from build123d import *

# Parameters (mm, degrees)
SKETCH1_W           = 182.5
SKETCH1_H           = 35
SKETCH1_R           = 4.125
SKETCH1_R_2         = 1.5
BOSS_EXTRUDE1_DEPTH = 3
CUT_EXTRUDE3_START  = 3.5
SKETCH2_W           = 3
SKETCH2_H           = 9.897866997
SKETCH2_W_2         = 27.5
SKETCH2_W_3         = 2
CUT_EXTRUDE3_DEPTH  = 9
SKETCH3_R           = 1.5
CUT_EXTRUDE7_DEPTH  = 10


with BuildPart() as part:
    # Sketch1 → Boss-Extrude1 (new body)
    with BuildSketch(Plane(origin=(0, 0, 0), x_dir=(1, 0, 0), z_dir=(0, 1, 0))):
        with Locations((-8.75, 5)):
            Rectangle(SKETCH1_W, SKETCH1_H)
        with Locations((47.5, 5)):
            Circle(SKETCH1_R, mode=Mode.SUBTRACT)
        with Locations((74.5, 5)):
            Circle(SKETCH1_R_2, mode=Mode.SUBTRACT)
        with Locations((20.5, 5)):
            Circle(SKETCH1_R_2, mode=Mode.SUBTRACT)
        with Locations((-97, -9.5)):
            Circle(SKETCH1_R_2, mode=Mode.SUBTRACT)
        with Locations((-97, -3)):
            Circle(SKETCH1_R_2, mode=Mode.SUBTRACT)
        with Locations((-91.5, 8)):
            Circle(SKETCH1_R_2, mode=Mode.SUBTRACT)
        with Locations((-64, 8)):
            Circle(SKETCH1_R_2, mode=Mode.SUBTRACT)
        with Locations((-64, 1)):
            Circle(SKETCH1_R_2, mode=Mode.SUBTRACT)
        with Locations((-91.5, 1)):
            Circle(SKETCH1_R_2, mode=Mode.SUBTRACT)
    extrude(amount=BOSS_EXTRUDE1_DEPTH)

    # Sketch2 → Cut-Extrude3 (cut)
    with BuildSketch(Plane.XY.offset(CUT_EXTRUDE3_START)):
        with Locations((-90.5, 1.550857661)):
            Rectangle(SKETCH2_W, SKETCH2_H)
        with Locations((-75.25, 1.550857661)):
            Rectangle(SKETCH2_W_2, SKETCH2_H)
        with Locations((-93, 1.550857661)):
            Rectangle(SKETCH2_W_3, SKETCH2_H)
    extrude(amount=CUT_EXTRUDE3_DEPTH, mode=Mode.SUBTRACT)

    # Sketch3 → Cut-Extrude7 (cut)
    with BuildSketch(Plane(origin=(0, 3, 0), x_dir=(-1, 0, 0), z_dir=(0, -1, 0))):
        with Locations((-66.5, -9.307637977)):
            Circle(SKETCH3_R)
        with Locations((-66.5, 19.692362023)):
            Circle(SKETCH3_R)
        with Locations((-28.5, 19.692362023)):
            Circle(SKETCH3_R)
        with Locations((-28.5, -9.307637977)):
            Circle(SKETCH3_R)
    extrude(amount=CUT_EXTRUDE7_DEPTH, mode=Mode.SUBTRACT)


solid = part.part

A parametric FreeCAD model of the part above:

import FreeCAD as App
import Part
import Sketcher


def add_polygon(sketch, points):
    """Adds a closed chain of lines whose ends are joined by coincident constraints."""
    first, n = sketch.GeometryCount, len(points)
    for a, b in zip(points, points[1:] + points[:1]):
        sketch.addGeometry(Part.LineSegment(App.Vector(*a, 0), App.Vector(*b, 0)), False)
    for i in range(n):
        sketch.addConstraint(Sketcher.Constraint("Coincident", first + i, 2, first + (i + 1) % n, 1))

doc = App.newDocument("Part")
body = doc.addObject("PartDesign::Body", "Body")

# Sketch on XZ plane
sketch1 = doc.addObject("Sketcher::SketchObject", "Sketch")
body.addObject(sketch1)
sketch1.AttachmentSupport = (doc.XZ_Plane, [""])
sketch1.MapMode = "FlatFace"
add_polygon(sketch1, [(-100, -22.5), (-100, 12.5), (82.5, 12.5), (82.5, -22.5)])  # lines 0-3
sketch1.addGeometry(Part.Circle(App.Vector(-97, 9.5, 0), App.Vector(0, 0, 1), 1.5), False)  # 4
sketch1.addGeometry(Part.Circle(App.Vector(-97, 3, 0), App.Vector(0, 0, 1), 1.5), False)  # 5
sketch1.addGeometry(Part.Circle(App.Vector(-91.5, -1, 0), App.Vector(0, 0, 1), 1.5), False)  # 6
sketch1.addGeometry(Part.Circle(App.Vector(-64, -1, 0), App.Vector(0, 0, 1), 1.5), False)  # 7
sketch1.addGeometry(Part.Circle(App.Vector(-91.5, -8, 0), App.Vector(0, 0, 1), 1.5), False)  # 8
sketch1.addGeometry(Part.Circle(App.Vector(-64, -8, 0), App.Vector(0, 0, 1), 1.5), False)  # 9
sketch1.addGeometry(Part.Circle(App.Vector(20.5, -5, 0), App.Vector(0, 0, 1), 1.5), False)  # 10
sketch1.addGeometry(Part.Circle(App.Vector(47.5, -5, 0), App.Vector(0, 0, 1), 4.1), False)  # 11
sketch1.addGeometry(Part.Circle(App.Vector(74.5, -5, 0), App.Vector(0, 0, 1), 1.5), False)  # 12
sketch1.addConstraint([
    Sketcher.Constraint("Vertical", 0),
    Sketcher.Constraint("Horizontal", 1),
    Sketcher.Constraint("Vertical", 2),
    Sketcher.Constraint("Horizontal", 3),
    Sketcher.Constraint("Equal", 4, 5),
    Sketcher.Constraint("Equal", 5, 6),
    Sketcher.Constraint("Equal", 6, 7),
    Sketcher.Constraint("Equal", 7, 8),
    Sketcher.Constraint("Equal", 8, 9),
    Sketcher.Constraint("Equal", 9, 10),
    Sketcher.Constraint("Equal", 10, 12),
    Sketcher.Constraint("Horizontal", 6, 3, 7, 3),
    Sketcher.Constraint("Horizontal", 8, 3, 9, 3),
    Sketcher.Constraint("Horizontal", 10, 3, 11, 3),
    Sketcher.Constraint("Horizontal", 11, 3, 12, 3),
    Sketcher.Constraint("Vertical", 4, 3, 5, 3),
    Sketcher.Constraint("Vertical", 6, 3, 8, 3),
    Sketcher.Constraint("Vertical", 7, 3, 9, 3),
    Sketcher.Constraint("Diameter", 4, 3.0),
    Sketcher.Constraint("Diameter", 11, 8.25),
    Sketcher.Constraint("DistanceY", 0, 1, 0, 2, 35.0),
    Sketcher.Constraint("DistanceX", 1, 1, 1, 2, 182.5),
    Sketcher.Constraint("DistanceX", 4, 3, -1, 1, 97.0),
    Sketcher.Constraint("DistanceY", -1, 1, 5, 3, 3.0),
    Sketcher.Constraint("DistanceY", 6, 3, -1, 1, 1.0),
    Sketcher.Constraint("DistanceX", 7, 3, -1, 1, 64.0),
    Sketcher.Constraint("DistanceY", 8, 3, -1, 1, 8.0),
    Sketcher.Constraint("DistanceY", 10, 3, -1, 1, 5.0),
    Sketcher.Constraint("DistanceX", 0, 2, -1, 1, 100.0),
    Sketcher.Constraint("DistanceX", 8, 3, 10, 3, 112.0),
    Sketcher.Constraint("DistanceX", 10, 3, 11, 3, 27.0),
    Sketcher.Constraint("DistanceX", 11, 3, 12, 3, 27.0),
    Sketcher.Constraint("DistanceY", 4, 3, 0, 2, 3.0),
    Sketcher.Constraint("DistanceX", 12, 3, 1, 2, 8.0),
    Sketcher.Constraint("DistanceY", -1, 1, 4, 3, 9.5),
])
pad1 = doc.addObject("PartDesign::Pad", "Pad")
body.addObject(pad1)
pad1.Profile = sketch1
pad1.Length = 3
pad1.Reversed = True

# Sketch on XY plane
sketch2 = doc.addObject("Sketcher::SketchObject", "Sketch001")
body.addObject(sketch2)
sketch2.AttachmentSupport = (doc.XY_Plane, [""])
sketch2.MapMode = "FlatFace"
sketch2.AttachmentOffset = App.Placement(App.Vector(0, 0, 3.5), App.Rotation())
add_polygon(sketch2, [(-62, -3), (-62, 6), (-94, 6), (-94, -3)])  # lines 0-3
sketch2.addConstraint([
    Sketcher.Constraint("Vertical", 0),
    Sketcher.Constraint("Horizontal", 1),
    Sketcher.Constraint("Vertical", 2),
    Sketcher.Constraint("Horizontal", 3),
    Sketcher.Constraint("DistanceX", 1, 2, 1, 1, 32.5),
    Sketcher.Constraint("DistanceX", 1, 2, -1, 1, 94.0),
    Sketcher.Constraint("DistanceY", 0, 1, 0, 2, 9.897867),
    Sketcher.Constraint("DistanceY", -1, 1, 0, 2, 6.499791),
])
pocket1 = doc.addObject("PartDesign::Pocket", "Pocket")
body.addObject(pocket1)
pocket1.Profile = sketch2
pocket1.Length = 9
pocket1.Reversed = True

# Sketch on XZ plane
sketch3 = doc.addObject("Sketcher::SketchObject", "Sketch002")
body.addObject(sketch3)
sketch3.AttachmentSupport = (doc.XZ_Plane, [""])
sketch3.MapMode = "FlatFace"
sketch3.AttachmentOffset = App.Placement(App.Vector(0, 0, -3), App.Rotation())
sketch3.addGeometry([
    Part.Circle(App.Vector(66.5, 9.3, 0), App.Vector(0, 0, 1), 1.5),
    Part.Circle(App.Vector(66.5, -19.7, 0), App.Vector(0, 0, 1), 1.5),
    Part.Circle(App.Vector(28.5, -19.7, 0), App.Vector(0, 0, 1), 1.5),
    Part.Circle(App.Vector(28.5, 9.3, 0), App.Vector(0, 0, 1), 1.5),
], False)
sketch3.addConstraint([
    Sketcher.Constraint("Equal", 0, 1),
    Sketcher.Constraint("Equal", 1, 2),
    Sketcher.Constraint("Equal", 2, 3),
    Sketcher.Constraint("Horizontal", 1, 3, 2, 3),
    Sketcher.Constraint("Horizontal", 0, 3, 3, 3),
    Sketcher.Constraint("Vertical", 0, 3, 1, 3),
    Sketcher.Constraint("Vertical", 2, 3, 3, 3),
    Sketcher.Constraint("Diameter", 0, 3.0),
    Sketcher.Constraint("DistanceY", 1, 3, 0, 3, 29.0),
    Sketcher.Constraint("DistanceX", 2, 3, 1, 3, 38.0),
    Sketcher.Constraint("DistanceX", -1, 1, 0, 3, 66.5),
    Sketcher.Constraint("DistanceY", -1, 1, 0, 3, 9.307638),
])
pocket2 = doc.addObject("PartDesign::Pocket", "Pocket001")
body.addObject(pocket2)
pocket2.Profile = sketch3
pocket2.Length = 10
pocket2.Reversed = True

doc.recompute()
